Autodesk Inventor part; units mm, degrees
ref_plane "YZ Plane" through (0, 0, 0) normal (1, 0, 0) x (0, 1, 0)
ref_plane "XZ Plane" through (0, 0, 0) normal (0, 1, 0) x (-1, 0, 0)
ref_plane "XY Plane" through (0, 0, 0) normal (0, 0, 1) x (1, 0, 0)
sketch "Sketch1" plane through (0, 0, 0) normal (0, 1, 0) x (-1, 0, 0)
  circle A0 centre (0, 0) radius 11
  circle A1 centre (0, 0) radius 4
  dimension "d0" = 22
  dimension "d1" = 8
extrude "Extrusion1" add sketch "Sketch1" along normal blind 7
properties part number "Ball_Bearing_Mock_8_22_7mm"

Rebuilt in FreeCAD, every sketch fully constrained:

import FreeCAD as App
import Part
import Sketcher

doc = App.newDocument("Part")
body = doc.addObject("PartDesign::Body", "Body")

sketch1 = body.newObject("Sketcher::SketchObject", "Sketch")
sketch1.AttachmentSupport = (doc.getObject("XZ_Plane"), [""])
sketch1.MapMode = "FlatFace"
sketch1.addGeometry([
    Part.Circle(App.Vector(0, 0, 0), App.Vector(0, 0, 1), 11),
    Part.Circle(App.Vector(0, 0, 0), App.Vector(0, 0, 1), 4),
], False)
sketch1.addConstraint([
    Sketcher.Constraint("Coincident", 0, 3, -1, 1),
    Sketcher.Constraint("Coincident", 1, 3, -1, 1),
    Sketcher.Constraint("Diameter", 0, 22.0),
    Sketcher.Constraint("Diameter", 1, 8.0),
])
pad1 = body.newObject("PartDesign::Pad", "Pad")
pad1.Profile = sketch1
pad1.Length = 7
pad1.Reversed = True

doc.recompute()
